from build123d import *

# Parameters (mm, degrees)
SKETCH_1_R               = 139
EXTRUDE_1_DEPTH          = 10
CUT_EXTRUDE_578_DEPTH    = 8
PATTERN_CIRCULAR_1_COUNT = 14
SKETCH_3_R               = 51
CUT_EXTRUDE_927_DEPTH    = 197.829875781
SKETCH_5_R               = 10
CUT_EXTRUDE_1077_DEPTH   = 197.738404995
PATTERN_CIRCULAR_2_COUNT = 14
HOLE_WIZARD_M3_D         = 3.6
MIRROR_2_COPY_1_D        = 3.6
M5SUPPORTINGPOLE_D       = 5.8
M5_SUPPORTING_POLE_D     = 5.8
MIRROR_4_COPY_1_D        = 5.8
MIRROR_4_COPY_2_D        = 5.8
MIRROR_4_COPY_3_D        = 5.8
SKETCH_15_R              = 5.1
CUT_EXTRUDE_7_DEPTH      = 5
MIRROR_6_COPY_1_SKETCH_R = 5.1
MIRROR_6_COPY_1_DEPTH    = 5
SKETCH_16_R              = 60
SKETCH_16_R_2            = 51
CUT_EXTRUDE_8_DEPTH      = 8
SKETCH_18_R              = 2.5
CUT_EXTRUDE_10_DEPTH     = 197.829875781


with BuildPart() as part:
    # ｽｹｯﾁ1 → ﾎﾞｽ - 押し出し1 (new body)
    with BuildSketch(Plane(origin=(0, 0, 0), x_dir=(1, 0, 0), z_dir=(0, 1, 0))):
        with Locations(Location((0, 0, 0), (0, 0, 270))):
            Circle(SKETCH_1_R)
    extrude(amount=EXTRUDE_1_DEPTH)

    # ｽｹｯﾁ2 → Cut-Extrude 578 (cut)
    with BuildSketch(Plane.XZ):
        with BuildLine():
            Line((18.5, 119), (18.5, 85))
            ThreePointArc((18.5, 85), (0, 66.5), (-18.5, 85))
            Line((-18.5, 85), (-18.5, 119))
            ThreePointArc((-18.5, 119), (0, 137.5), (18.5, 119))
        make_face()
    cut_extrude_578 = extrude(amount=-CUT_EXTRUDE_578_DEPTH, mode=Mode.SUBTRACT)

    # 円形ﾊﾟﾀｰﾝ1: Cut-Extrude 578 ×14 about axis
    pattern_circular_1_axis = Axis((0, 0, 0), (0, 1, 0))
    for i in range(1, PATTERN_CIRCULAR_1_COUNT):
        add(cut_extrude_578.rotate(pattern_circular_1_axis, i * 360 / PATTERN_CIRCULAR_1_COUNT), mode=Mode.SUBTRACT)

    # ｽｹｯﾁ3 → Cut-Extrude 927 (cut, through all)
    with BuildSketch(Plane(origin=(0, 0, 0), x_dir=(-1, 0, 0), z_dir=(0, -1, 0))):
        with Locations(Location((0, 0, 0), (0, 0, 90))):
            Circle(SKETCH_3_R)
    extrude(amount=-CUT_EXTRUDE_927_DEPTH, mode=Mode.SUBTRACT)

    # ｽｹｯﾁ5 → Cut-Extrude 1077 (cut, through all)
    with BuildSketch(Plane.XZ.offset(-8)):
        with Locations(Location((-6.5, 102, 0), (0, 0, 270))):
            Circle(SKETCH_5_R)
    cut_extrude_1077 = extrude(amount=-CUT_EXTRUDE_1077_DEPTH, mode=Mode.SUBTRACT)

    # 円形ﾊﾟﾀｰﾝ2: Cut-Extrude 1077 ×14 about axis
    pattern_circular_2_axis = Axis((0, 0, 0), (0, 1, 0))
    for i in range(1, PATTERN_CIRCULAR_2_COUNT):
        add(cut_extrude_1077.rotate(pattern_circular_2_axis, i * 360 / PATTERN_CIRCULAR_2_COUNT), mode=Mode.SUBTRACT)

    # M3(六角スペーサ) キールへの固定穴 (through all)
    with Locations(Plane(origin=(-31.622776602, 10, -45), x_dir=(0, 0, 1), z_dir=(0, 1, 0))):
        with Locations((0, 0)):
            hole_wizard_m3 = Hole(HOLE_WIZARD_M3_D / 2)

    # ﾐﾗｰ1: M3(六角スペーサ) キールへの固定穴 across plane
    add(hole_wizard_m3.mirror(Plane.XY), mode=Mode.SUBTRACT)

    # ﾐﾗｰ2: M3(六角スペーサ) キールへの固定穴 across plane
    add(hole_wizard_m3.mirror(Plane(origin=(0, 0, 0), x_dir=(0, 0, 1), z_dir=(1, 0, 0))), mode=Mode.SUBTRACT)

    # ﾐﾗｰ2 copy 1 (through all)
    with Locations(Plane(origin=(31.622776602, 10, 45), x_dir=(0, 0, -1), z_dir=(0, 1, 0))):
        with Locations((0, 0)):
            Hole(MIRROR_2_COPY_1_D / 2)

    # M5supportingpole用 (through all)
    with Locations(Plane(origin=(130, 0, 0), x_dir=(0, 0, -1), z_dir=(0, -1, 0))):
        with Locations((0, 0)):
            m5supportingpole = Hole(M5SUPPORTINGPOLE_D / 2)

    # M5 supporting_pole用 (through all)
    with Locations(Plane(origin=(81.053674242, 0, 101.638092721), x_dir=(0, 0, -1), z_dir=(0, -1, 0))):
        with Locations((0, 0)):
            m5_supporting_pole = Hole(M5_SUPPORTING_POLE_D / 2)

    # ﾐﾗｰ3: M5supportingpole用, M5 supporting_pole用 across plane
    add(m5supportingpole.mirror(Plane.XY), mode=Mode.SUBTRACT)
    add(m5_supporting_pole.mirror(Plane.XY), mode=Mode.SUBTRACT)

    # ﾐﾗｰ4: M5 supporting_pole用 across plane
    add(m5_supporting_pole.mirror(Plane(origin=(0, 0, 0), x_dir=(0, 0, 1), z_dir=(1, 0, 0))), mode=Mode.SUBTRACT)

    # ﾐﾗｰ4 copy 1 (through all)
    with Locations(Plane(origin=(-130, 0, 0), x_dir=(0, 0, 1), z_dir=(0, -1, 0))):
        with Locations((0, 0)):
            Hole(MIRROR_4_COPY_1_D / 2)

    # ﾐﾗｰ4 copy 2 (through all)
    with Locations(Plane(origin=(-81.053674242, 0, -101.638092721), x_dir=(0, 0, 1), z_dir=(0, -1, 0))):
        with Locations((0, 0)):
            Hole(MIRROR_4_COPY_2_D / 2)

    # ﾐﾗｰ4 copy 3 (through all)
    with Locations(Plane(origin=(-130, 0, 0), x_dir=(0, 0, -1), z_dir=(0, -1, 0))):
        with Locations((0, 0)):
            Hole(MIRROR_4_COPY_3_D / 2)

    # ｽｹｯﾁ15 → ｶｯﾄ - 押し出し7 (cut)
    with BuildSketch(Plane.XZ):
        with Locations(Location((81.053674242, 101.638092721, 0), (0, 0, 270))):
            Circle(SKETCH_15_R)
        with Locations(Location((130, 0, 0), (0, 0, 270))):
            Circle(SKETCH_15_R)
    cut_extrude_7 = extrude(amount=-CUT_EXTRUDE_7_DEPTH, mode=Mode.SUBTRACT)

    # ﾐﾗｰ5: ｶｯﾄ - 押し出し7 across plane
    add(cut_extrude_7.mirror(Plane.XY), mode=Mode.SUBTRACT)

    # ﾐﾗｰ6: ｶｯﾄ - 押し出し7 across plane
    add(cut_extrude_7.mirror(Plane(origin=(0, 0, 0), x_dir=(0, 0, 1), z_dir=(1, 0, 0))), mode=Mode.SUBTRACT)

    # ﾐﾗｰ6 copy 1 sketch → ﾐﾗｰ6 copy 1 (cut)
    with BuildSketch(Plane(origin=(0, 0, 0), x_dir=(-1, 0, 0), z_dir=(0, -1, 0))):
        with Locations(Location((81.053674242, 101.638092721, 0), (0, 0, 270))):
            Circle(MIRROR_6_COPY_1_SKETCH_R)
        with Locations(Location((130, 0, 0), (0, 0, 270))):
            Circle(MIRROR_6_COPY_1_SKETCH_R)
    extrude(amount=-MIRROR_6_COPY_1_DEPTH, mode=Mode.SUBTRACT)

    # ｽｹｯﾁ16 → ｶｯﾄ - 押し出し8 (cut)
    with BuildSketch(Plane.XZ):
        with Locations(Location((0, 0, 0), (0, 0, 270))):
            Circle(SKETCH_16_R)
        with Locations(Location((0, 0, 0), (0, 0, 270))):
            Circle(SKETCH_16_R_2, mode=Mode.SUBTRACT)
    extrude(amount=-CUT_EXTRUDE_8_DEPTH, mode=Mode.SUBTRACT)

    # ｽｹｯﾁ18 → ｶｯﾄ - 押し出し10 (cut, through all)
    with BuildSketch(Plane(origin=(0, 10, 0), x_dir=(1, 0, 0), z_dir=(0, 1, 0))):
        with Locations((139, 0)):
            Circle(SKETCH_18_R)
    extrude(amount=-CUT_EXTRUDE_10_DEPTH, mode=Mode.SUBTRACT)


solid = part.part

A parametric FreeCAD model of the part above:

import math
import FreeCAD as App
import Part
import Sketcher
from FreeCAD import Vector

doc = App.newDocument("Part")
body = doc.addObject("PartDesign::Body", "Body")

sketch1 = body.newObject("Sketcher::SketchObject", "Sketch")
sketch1.AttachmentSupport = (doc.getObject("XZ_Plane"), [""])
sketch1.MapMode = "FlatFace"
sketch1.addGeometry(Part.Circle(Vector(0, 0, 0), Vector(0, 0, 1), 139), False)
sketch1.addConstraint([
    Sketcher.Constraint("Coincident", 0, 3, -1, 1),
    Sketcher.Constraint("Diameter", 0, 278.0),
])
pad1 = body.newObject("PartDesign::Pad", "Pad")
pad1.Profile = sketch1
pad1.Length = 10
pad1.Reversed = True

sketch2 = body.newObject("Sketcher::SketchObject", "Sketch001")
sketch2.AttachmentSupport = (doc.getObject("XZ_Plane"), [""])
sketch2.MapMode = "FlatFace"
sketch2.addGeometry([
    Part.LineSegment(Vector(18, 85, 0), Vector(18, 119, 0)),
    Part.ArcOfCircle(Part.Circle(Vector(0, 119, 0), Vector(0, 0, 1), 18), math.radians(0), math.radians(180)),
    Part.LineSegment(Vector(-18, 119, 0), Vector(-18, 85, 0)),
    Part.ArcOfCircle(Part.Circle(Vector(0, 85, 0), Vector(0, 0, 1), 18), math.radians(180), math.radians(360)),
], False)
sketch2.addConstraint([
    Sketcher.Constraint("Tangent", 0, 2, 1, 1),
    Sketcher.Constraint("Tangent", 1, 2, 2, 1),
    Sketcher.Constraint("Tangent", 2, 2, 3, 1),
    Sketcher.Constraint("Tangent", 3, 2, 0, 1),
    Sketcher.Constraint("Vertical", 0),
    Sketcher.Constraint("Vertical", 2),
    Sketcher.Constraint("PointOnObject", 1, 3, -2),
    Sketcher.Constraint("Radius", 1, 18.5),
    Sketcher.Constraint("DistanceY", 0, 1, 0, 2, 34.0),
    Sketcher.Constraint("DistanceY", -1, 1, 1, 3, 119.0),
])
pocket1 = body.newObject("PartDesign::Pocket", "Pocket")
pocket1.Profile = sketch2
pocket1.Length = 8
doc.recompute()

polarpattern = body.newObject("PartDesign::PolarPattern", "PolarPattern")
polarpattern.Originals = [pocket1]
polarpattern.Axis = (doc.getObject("Y_Axis"), [""])
polarpattern.Angle = 360
polarpattern.Occurrences = 14
body.Tip = polarpattern

sketch3 = body.newObject("Sketcher::SketchObject", "Sketch002")
sketch3.AttachmentSupport = (doc.getObject("XZ_Plane"), [""])
sketch3.MapMode = "FlatFace"
sketch3.addGeometry(Part.Circle(Vector(0, 0, 0), Vector(0, 0, 1), 51), False)
sketch3.addConstraint([
    Sketcher.Constraint("Coincident", 0, 3, -1, 1),
    Sketcher.Constraint("Diameter", 0, 102.0),
])
pocket2 = body.newObject("PartDesign::Pocket", "Pocket001")
pocket2.Profile = sketch3
pocket2.Type = "ThroughAll"

sketch4 = body.newObject("Sketcher::SketchObject", "Sketch003")
sketch4.AttachmentSupport = (doc.getObject("XZ_Plane"), [""])
sketch4.MapMode = "FlatFace"
sketch4.AttachmentOffset = App.Placement(Vector(0, 0, -8), App.Rotation())
sketch4.addGeometry(Part.Circle(Vector(-6, 102, 0), Vector(0, 0, 1), 10), False)
sketch4.addConstraint([
    Sketcher.Constraint("Diameter", 0, 20.0),
    Sketcher.Constraint("DistanceY", -1, 1, 0, 3, 102.0),
    Sketcher.Constraint("DistanceX", 0, 3, -1, 1, 6.5),
])
pocket3 = body.newObject("PartDesign::Pocket", "Pocket002")
pocket3.Profile = sketch4
pocket3.Type = "ThroughAll"
doc.recompute()

polarpattern2 = body.newObject("PartDesign::PolarPattern", "PolarPattern001")
polarpattern2.Originals = [pocket3]
polarpattern2.Axis = (doc.getObject("Y_Axis"), [""])
polarpattern2.Angle = 360
polarpattern2.Occurrences = 14
body.Tip = polarpattern2

sketch5 = body.newObject("Sketcher::SketchObject", "Sketch004")
sketch5.AttachmentSupport = (doc.getObject("XZ_Plane"), [""])
sketch5.MapMode = "FlatFace"
sketch5.AttachmentOffset = App.Placement(Vector(0, 0, -10), App.Rotation())
sketch5.addGeometry(Part.Circle(Vector(-31.6, -45, 0), Vector(0, 0, 1), 1.8), False)
sketch5.addConstraint([
    Sketcher.Constraint("Diameter", 0, 3.6),
    Sketcher.Constraint("DistanceY", 0, 3, -1, 1, 45.0),
    Sketcher.Constraint("DistanceX", 0, 3, -1, 1, 31.622777),
])
doc.recompute()
hole = body.newObject("PartDesign::Hole", "Hole")
hole.Profile = sketch5
hole.ThreadType = "None"
hole.Diameter = 3.6
hole.DepthType = "ThroughAll"
hole.Reversed = True
doc.recompute()

mirrored = body.newObject("PartDesign::Mirrored", "Mirrored")
mirrored.Originals = [hole]
mirrored.MirrorPlane = (doc.getObject("XY_Plane"), [""])
body.Tip = mirrored
doc.recompute()

mirrored2 = body.newObject("PartDesign::Mirrored", "Mirrored001")
mirrored2.Originals = [hole]
mirrored2.MirrorPlane = (doc.getObject("YZ_Plane"), [""])
body.Tip = mirrored2

sketch6 = body.newObject("Sketcher::SketchObject", "Sketch005")
sketch6.AttachmentSupport = (doc.getObject("XZ_Plane"), [""])
sketch6.MapMode = "FlatFace"
sketch6.AttachmentOffset = App.Placement(Vector(0, 0, -10), App.Rotation())
sketch6.addGeometry(Part.Circle(Vector(31.6, 45, 0), Vector(0, 0, 1), 1.8), False)
sketch6.addConstraint([
    Sketcher.Constraint("Diameter", 0, 3.6),
    Sketcher.Constraint("DistanceY", -1, 1, 0, 3, 45.0),
    Sketcher.Constraint("DistanceX", -1, 1, 0, 3, 31.622777),
])
doc.recompute()
hole2 = body.newObject("PartDesign::Hole", "Hole001")
hole2.Profile = sketch6
hole2.ThreadType = "None"
hole2.Diameter = 3.6
hole2.DepthType = "ThroughAll"
hole2.Reversed = True

sketch7 = body.newObject("Sketcher::SketchObject", "Sketch006")
sketch7.AttachmentSupport = (doc.getObject("XZ_Plane"), [""])
sketch7.MapMode = "FlatFace"
sketch7.addGeometry(Part.Circle(Vector(130, 0, 0), Vector(0, 0, 1), 2.9), False)
sketch7.addConstraint([
    Sketcher.Constraint("PointOnObject", 0, 3, -1),
    Sketcher.Constraint("Diameter", 0, 5.8),
    Sketcher.Constraint("DistanceX", -1, 1, 0, 3, 130.0),
])
doc.recompute()
hole3 = body.newObject("PartDesign::Hole", "Hole002")
hole3.Profile = sketch7
hole3.ThreadType = "None"
hole3.Diameter = 5.8
hole3.DepthType = "ThroughAll"

sketch8 = body.newObject("Sketcher::SketchObject", "Sketch007")
sketch8.AttachmentSupport = (doc.getObject("XZ_Plane"), [""])
sketch8.MapMode = "FlatFace"
sketch8.addGeometry(Part.Circle(Vector(81.1, 101.6, 0), Vector(0, 0, 1), 2.9), False)
sketch8.addConstraint([
    Sketcher.Constraint("Diameter", 0, 5.8),
    Sketcher.Constraint("DistanceX", -1, 1, 0, 3, 81.053674),
    Sketcher.Constraint("DistanceY", -1, 1, 0, 3, 101.638093),
])
doc.recompute()
hole4 = body.newObject("PartDesign::Hole", "Hole003")
hole4.Profile = sketch8
hole4.ThreadType = "None"
hole4.Diameter = 5.8
hole4.DepthType = "ThroughAll"
doc.recompute()

mirrored3 = body.newObject("PartDesign::Mirrored", "Mirrored002")
mirrored3.Originals = [hole3, hole4]
mirrored3.MirrorPlane = (doc.getObject("XY_Plane"), [""])
body.Tip = mirrored3
doc.recompute()

mirrored4 = body.newObject("PartDesign::Mirrored", "Mirrored003")
mirrored4.Originals = [hole4]
mirrored4.MirrorPlane = (doc.getObject("YZ_Plane"), [""])
body.Tip = mirrored4

sketch9 = body.newObject("Sketcher::SketchObject", "Sketch008")
sketch9.AttachmentSupport = (doc.getObject("XZ_Plane"), [""])
sketch9.MapMode = "FlatFace"
sketch9.addGeometry(Part.Circle(Vector(-130, 0, 0), Vector(0, 0, 1), 2.9), False)
sketch9.addConstraint([
    Sketcher.Constraint("PointOnObject", 0, 3, -1),
    Sketcher.Constraint("Diameter", 0, 5.8),
    Sketcher.Constraint("DistanceX", 0, 3, -1, 1, 130.0),
])
doc.recompute()
hole5 = body.newObject("PartDesign::Hole", "Hole004")
hole5.Profile = sketch9
hole5.ThreadType = "None"
hole5.Diameter = 5.8
hole5.DepthType = "ThroughAll"

sketch10 = body.newObject("Sketcher::SketchObject", "Sketch009")
sketch10.AttachmentSupport = (doc.getObject("XZ_Plane"), [""])
sketch10.MapMode = "FlatFace"
sketch10.addGeometry(Part.Circle(Vector(-81.1, -101.6, 0), Vector(0, 0, 1), 2.9), False)
sketch10.addConstraint([
    Sketcher.Constraint("Diameter", 0, 5.8),
    Sketcher.Constraint("DistanceX", 0, 3, -1, 1, 81.053674),
    Sketcher.Constraint("DistanceY", 0, 3, -1, 1, 101.638093),
])
doc.recompute()
hole6 = body.newObject("PartDesign::Hole", "Hole005")
hole6.Profile = sketch10
hole6.ThreadType = "None"
hole6.Diameter = 5.8
hole6.DepthType = "ThroughAll"

sketch11 = body.newObject("Sketcher::SketchObject", "Sketch010")
sketch11.AttachmentSupport = (doc.getObject("XZ_Plane"), [""])
sketch11.MapMode = "FlatFace"
sketch11.addGeometry(Part.Circle(Vector(-130, 0, 0), Vector(0, 0, 1), 2.9), False)
sketch11.addConstraint([
    Sketcher.Constraint("PointOnObject", 0, 3, -1),
    Sketcher.Constraint("Diameter", 0, 5.8),
    Sketcher.Constraint("DistanceX", 0, 3, -1, 1, 130.0),
])
doc.recompute()
hole7 = body.newObject("PartDesign::Hole", "Hole006")
hole7.Profile = sketch11
hole7.ThreadType = "None"
hole7.Diameter = 5.8
hole7.DepthType = "ThroughAll"

sketch12 = body.newObject("Sketcher::SketchObject", "Sketch011")
sketch12.AttachmentSupport = (doc.getObject("XZ_Plane"), [""])
sketch12.MapMode = "FlatFace"
sketch12.addGeometry([
    Part.Circle(Vector(81, 102, 0), Vector(0, 0, 1), 5),
    Part.Circle(Vector(130, 0, 0), Vector(0, 0, 1), 5),
], False)
sketch12.addConstraint([
    Sketcher.Constraint("Equal", 0, 1),
    Sketcher.Constraint("PointOnObject", 1, 3, -1),
    Sketcher.Constraint("Diameter", 0, 10.2),
    Sketcher.Constraint("DistanceX", -1, 1, 1, 3, 130.0),
    Sketcher.Constraint("DistanceX", -1, 1, 0, 3, 81.053674),
    Sketcher.Constraint("DistanceY", -1, 1, 0, 3, 101.638093),
])
pocket4 = body.newObject("PartDesign::Pocket", "Pocket003")
pocket4.Profile = sketch12
pocket4.Length = 5
doc.recompute()

mirrored5 = body.newObject("PartDesign::Mirrored", "Mirrored004")
mirrored5.Originals = [pocket4]
mirrored5.MirrorPlane = (doc.getObject("XY_Plane"), [""])
body.Tip = mirrored5
doc.recompute()

mirrored6 = body.newObject("PartDesign::Mirrored", "Mirrored005")
mirrored6.Originals = [pocket4]
mirrored6.MirrorPlane = (doc.getObject("YZ_Plane"), [""])
body.Tip = mirrored6

sketch13 = body.newObject("Sketcher::SketchObject", "Sketch012")
sketch13.AttachmentSupport = (doc.getObject("XZ_Plane"), [""])
sketch13.MapMode = "FlatFace"
sketch13.addGeometry([
    Part.Circle(Vector(-81, -102, 0), Vector(0, 0, 1), 5),
    Part.Circle(Vector(-130, 0, 0), Vector(0, 0, 1), 5),
], False)
sketch13.addConstraint([
    Sketcher.Constraint("Equal", 0, 1),
    Sketcher.Constraint("PointOnObject", 1, 3, -1),
    Sketcher.Constraint("Diameter", 0, 10.2),
    Sketcher.Constraint("DistanceX", 1, 3, -1, 1, 130.0),
    Sketcher.Constraint("DistanceX", 0, 3, -1, 1, 81.053674),
    Sketcher.Constraint("DistanceY", 0, 3, -1, 1, 101.638093),
])
pocket5 = body.newObject("PartDesign::Pocket", "Pocket004")
pocket5.Profile = sketch13
pocket5.Length = 5

sketch14 = body.newObject("Sketcher::SketchObject", "Sketch013")
sketch14.AttachmentSupport = (doc.getObject("XZ_Plane"), [""])
sketch14.MapMode = "FlatFace"
sketch14.addGeometry([
    Part.Circle(Vector(0, 0, 0), Vector(0, 0, 1), 60),
    Part.Circle(Vector(0, 0, 0), Vector(0, 0, 1), 51),
], False)
sketch14.addConstraint([
    Sketcher.Constraint("Coincident", 0, 3, -1, 1),
    Sketcher.Constraint("Coincident", 1, 3, -1, 1),
    Sketcher.Constraint("Diameter", 0, 120.0),
    Sketcher.Constraint("Diameter", 1, 102.0),
])
pocket6 = body.newObject("PartDesign::Pocket", "Pocket005")
pocket6.Profile = sketch14
pocket6.Length = 8

sketch15 = body.newObject("Sketcher::SketchObject", "Sketch014")
sketch15.AttachmentSupport = (doc.getObject("XZ_Plane"), [""])
sketch15.MapMode = "FlatFace"
sketch15.AttachmentOffset = App.Placement(Vector(0, 0, -10), App.Rotation())
sketch15.addGeometry(Part.Circle(Vector(139, 0, 0), Vector(0, 0, 1), 2.5), False)
sketch15.addConstraint([
    Sketcher.Constraint("PointOnObject", 0, 3, -1),
    Sketcher.Constraint("Diameter", 0, 5.0),
    Sketcher.Constraint("DistanceX", -1, 1, 0, 3, 139.0),
])
pocket7 = body.newObject("PartDesign::Pocket", "Pocket006")
pocket7.Profile = sketch15
pocket7.Type = "ThroughAll"
pocket7.Reversed = True

doc.recompute()
